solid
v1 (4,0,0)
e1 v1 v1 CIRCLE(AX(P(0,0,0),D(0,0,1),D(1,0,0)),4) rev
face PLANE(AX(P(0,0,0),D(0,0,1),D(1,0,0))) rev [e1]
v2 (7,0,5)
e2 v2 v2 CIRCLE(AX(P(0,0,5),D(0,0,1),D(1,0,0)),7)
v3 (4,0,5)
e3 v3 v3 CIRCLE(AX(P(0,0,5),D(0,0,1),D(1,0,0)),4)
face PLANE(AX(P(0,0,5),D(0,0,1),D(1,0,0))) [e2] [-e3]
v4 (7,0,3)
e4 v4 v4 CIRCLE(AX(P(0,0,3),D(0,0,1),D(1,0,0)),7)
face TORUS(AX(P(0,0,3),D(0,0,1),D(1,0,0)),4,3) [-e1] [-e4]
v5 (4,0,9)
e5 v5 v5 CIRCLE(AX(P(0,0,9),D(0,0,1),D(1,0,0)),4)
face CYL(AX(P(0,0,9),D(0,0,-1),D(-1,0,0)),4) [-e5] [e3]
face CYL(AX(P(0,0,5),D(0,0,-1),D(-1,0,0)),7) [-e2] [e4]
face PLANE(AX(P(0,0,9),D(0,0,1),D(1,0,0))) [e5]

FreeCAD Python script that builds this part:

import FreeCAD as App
import Part
import Sketcher


def edges_at(feature, points):
    """Names of the edges that pass closest to the given points."""
    edges = feature.Shape.Edges
    near = lambda p: min(range(len(edges)), key=lambda i: edges[i].distToShape(Part.Vertex(*p))[0])
    return sorted({f"Edge{near(p) + 1}" for p in points})

doc = App.newDocument("Part")
body = doc.addObject("PartDesign::Body", "Body")

sketch1 = body.newObject("Sketcher::SketchObject", "Sketch")
sketch1.AttachmentSupport = (doc.getObject("XY_Plane"), [""])
sketch1.MapMode = "FlatFace"
sketch1.addGeometry(Part.Circle(App.Vector(0, 0, 0), App.Vector(0, 0, 1), 7), False)
sketch1.addConstraint([
    Sketcher.Constraint("Coincident", 0, 3, -1, 1),
    Sketcher.Constraint("Diameter", 0, 14.0),
])
pad1 = body.newObject("PartDesign::Pad", "Pad")
pad1.Profile = sketch1
pad1.Length = 5
doc.recompute()

fillet = body.newObject("PartDesign::Fillet", "Fillet")
fillet.Base = (pad1, edges_at(pad1, [(-7, 0, 0)]))
fillet.Radius = 3

sketch2 = body.newObject("Sketcher::SketchObject", "Sketch001")
sketch2.AttachmentSupport = (doc.getObject("XY_Plane"), [""])
sketch2.MapMode = "FlatFace"
sketch2.AttachmentOffset = App.Placement(App.Vector(0, 0, 5), App.Rotation())
sketch2.addGeometry(Part.Circle(App.Vector(0, 0, 0), App.Vector(0, 0, 1), 4), False)
sketch2.addConstraint([
    Sketcher.Constraint("Coincident", 0, 3, -1, 1),
    Sketcher.Constraint("Diameter", 0, 8.0),
])
pad2 = body.newObject("PartDesign::Pad", "Pad001")
pad2.Profile = sketch2
pad2.Length = 4

doc.recompute()
